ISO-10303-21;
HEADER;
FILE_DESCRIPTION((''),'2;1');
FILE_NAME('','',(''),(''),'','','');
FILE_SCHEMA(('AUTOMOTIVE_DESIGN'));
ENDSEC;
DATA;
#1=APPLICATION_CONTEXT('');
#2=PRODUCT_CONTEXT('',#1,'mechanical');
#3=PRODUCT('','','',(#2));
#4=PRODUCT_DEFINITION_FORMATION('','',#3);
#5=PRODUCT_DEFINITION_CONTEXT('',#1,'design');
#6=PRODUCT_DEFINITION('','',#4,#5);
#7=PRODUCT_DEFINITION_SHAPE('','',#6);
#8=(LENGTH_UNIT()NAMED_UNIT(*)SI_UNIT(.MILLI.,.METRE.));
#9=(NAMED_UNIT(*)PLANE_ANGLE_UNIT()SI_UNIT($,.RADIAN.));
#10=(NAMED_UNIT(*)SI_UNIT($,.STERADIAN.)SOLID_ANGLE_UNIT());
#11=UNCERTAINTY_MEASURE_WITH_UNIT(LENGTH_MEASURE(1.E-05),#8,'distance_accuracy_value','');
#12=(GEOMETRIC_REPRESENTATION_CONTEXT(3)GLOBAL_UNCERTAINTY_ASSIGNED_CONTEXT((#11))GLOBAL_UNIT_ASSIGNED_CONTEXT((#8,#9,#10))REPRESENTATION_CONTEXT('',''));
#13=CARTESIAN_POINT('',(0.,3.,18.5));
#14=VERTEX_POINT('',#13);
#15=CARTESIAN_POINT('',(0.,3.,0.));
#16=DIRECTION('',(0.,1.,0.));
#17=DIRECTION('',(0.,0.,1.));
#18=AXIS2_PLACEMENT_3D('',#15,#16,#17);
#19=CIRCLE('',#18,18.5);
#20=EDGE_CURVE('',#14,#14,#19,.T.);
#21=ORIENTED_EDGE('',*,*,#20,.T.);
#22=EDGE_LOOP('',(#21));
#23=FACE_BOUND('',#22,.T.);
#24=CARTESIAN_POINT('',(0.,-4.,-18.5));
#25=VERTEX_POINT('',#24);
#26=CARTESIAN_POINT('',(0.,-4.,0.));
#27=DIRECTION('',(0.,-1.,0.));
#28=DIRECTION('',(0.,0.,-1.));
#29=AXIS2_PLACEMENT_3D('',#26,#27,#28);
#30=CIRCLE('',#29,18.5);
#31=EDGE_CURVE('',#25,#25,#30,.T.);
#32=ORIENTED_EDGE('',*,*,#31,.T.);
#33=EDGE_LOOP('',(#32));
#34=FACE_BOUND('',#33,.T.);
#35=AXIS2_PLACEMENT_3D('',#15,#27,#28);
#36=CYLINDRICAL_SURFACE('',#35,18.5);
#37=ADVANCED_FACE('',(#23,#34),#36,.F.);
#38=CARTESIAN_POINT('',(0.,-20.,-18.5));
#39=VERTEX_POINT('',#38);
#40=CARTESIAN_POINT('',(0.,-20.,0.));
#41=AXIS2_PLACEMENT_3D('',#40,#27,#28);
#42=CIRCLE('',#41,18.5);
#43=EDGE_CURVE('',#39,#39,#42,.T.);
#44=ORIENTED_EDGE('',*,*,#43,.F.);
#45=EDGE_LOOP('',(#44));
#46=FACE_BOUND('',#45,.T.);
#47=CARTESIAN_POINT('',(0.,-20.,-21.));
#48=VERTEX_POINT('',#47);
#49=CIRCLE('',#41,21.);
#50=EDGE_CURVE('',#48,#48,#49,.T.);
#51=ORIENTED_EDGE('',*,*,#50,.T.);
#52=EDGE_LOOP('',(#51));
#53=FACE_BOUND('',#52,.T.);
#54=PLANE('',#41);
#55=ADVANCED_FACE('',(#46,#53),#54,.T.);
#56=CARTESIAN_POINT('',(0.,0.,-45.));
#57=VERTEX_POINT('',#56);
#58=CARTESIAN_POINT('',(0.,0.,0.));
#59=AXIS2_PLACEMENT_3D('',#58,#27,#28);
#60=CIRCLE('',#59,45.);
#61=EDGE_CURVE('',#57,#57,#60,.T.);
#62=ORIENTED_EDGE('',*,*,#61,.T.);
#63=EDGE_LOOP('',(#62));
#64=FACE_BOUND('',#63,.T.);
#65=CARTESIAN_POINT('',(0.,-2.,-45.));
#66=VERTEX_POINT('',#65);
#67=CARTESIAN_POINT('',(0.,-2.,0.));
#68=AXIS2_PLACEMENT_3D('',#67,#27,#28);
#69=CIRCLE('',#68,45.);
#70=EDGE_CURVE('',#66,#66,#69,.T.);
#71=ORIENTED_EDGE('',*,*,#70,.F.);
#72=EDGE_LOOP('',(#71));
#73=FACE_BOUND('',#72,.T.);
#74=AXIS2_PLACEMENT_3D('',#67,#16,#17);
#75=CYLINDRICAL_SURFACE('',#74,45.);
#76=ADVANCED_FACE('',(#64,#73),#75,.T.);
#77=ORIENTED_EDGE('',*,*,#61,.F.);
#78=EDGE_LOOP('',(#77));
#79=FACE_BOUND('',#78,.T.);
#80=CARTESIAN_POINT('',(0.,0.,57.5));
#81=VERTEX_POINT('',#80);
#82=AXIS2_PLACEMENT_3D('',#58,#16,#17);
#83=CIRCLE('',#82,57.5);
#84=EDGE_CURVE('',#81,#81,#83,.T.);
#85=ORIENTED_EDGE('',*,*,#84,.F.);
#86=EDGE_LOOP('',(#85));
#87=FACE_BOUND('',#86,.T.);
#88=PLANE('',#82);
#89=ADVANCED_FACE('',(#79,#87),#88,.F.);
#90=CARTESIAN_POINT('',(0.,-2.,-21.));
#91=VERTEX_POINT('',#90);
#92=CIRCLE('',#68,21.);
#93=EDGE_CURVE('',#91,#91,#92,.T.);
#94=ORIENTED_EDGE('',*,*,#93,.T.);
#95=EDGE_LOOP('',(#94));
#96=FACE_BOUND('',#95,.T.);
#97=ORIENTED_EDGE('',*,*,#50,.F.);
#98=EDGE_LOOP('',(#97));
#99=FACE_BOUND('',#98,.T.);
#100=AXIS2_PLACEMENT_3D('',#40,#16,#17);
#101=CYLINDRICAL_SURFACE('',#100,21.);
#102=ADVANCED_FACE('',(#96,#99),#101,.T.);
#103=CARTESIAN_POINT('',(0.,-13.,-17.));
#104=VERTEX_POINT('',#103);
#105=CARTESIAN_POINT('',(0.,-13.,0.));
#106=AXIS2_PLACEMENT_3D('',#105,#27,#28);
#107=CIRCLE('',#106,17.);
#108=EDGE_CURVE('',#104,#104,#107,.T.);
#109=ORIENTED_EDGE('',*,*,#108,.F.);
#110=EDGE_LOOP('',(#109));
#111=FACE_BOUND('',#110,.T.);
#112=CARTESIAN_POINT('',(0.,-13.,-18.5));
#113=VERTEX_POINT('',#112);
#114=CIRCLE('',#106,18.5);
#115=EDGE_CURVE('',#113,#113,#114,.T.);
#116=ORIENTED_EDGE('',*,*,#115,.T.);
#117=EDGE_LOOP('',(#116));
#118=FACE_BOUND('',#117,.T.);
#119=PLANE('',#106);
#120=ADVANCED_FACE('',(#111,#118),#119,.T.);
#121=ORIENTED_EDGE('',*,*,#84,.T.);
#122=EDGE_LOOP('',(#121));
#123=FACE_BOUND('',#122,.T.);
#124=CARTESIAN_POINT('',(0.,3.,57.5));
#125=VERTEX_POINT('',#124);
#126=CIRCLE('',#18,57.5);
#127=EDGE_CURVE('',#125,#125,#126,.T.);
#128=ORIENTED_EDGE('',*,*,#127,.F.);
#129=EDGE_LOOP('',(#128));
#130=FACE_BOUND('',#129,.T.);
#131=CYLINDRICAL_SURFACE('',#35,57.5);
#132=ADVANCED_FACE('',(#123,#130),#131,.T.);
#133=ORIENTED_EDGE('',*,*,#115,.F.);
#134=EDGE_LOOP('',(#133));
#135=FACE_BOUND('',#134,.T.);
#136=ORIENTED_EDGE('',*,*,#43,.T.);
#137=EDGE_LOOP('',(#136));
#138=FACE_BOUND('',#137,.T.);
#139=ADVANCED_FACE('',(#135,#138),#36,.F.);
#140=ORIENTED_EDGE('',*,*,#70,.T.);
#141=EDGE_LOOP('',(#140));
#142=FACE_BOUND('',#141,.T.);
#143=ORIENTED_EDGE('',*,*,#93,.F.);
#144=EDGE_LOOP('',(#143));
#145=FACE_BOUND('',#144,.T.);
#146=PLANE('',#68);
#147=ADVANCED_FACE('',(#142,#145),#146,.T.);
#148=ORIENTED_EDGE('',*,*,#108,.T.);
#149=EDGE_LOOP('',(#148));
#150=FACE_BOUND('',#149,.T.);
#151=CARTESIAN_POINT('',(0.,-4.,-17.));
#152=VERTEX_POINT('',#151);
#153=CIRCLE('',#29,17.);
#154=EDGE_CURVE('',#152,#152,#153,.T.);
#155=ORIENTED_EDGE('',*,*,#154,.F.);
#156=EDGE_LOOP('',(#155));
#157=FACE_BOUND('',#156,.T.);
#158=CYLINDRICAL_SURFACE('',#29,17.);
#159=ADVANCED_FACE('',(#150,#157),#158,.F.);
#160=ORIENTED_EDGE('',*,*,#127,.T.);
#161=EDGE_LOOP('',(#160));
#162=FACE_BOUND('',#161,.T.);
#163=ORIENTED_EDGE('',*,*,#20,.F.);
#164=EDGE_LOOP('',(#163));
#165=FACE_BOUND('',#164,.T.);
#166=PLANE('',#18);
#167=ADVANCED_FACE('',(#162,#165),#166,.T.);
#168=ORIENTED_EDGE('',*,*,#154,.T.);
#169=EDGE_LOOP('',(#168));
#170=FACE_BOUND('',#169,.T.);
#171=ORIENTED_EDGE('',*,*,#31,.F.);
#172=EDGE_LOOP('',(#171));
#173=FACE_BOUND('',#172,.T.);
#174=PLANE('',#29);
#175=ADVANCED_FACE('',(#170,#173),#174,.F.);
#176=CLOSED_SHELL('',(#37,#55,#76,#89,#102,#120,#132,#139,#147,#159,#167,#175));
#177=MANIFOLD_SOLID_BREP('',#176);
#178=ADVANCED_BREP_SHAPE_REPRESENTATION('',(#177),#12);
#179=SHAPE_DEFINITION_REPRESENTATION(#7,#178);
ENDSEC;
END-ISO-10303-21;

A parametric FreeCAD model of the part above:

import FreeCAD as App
import Part
import Sketcher
from FreeCAD import Vector
Q = App.Units.Quantity

doc = App.newDocument("Part")
params = doc.addObject("Spreadsheet::Sheet", "Params")
for row, (alias, value) in enumerate([
    ("sketch1_diameter", "115 mm"),
    ("sketch1_diameter2", "37 mm"),
    ("pad1_length", "3 mm"),
    ("sketch2_diameter", "90 mm"),
    ("sketch2_diameter2", "37 mm"),
    ("pad2_length", "2 mm"),
    ("sketch3_diameter", "42 mm"),
    ("sketch3_diameter2", "37 mm"),
    ("pad3_length", "18 mm"),
    ("sketch4_diameter", "37 mm"),
    ("sketch4_diameter2", "34 mm"),
    ("pad4_length", "9 mm"),
], start=1):
    params.set(f"A{row}", alias)
    params.set(f"B{row}", "=" + value)
    params.setAlias(f"B{row}", alias)

body = doc.addObject("PartDesign::Body", "Body")

sketch1 = body.newObject("Sketcher::SketchObject", "Sketch")
sketch1.AttachmentSupport = (doc.getObject("XZ_Plane"), [""])
sketch1.MapMode = "FlatFace"
sketch1.addGeometry([
    Part.Circle(Vector(0, 0, 0), Vector(0, 0, 1), 58),
    Part.Circle(Vector(0, 0, 0), Vector(0, 0, 1), 18),
], False)
sketch1.addConstraint([
    Sketcher.Constraint("Coincident", 0, 3, -1, 1),
    Sketcher.Constraint("Coincident", 1, 3, -1, 1),
    Sketcher.Constraint("Diameter", 0, Q("115 mm")),
    Sketcher.Constraint("Diameter", 1, Q("37 mm")),
])
sketch1.setExpression("Constraints[2]", "Params.sketch1_diameter")
sketch1.setExpression("Constraints[3]", "Params.sketch1_diameter2")
pad1 = body.newObject("PartDesign::Pad", "Pad")
pad1.Profile = sketch1
pad1.setExpression("Length", "Params.pad1_length")
pad1.Reversed = True

sketch2 = body.newObject("Sketcher::SketchObject", "Sketch001")
sketch2.AttachmentSupport = (doc.getObject("XZ_Plane"), [""])
sketch2.MapMode = "FlatFace"
sketch2.AttachmentOffset = App.Placement(Vector(0, 0, 2), App.Rotation())
sketch2.addGeometry([
    Part.Circle(Vector(0, 0, 0), Vector(0, 0, 1), 45),
    Part.Circle(Vector(0, 0, 0), Vector(0, 0, 1), 18),
], False)
sketch2.addConstraint([
    Sketcher.Constraint("Coincident", 0, 3, -1, 1),
    Sketcher.Constraint("Coincident", 1, 3, -1, 1),
    Sketcher.Constraint("Diameter", 0, Q("90 mm")),
    Sketcher.Constraint("Diameter", 1, Q("37 mm")),
])
sketch2.setExpression("Constraints[2]", "Params.sketch2_diameter")
sketch2.setExpression("Constraints[3]", "Params.sketch2_diameter2")
pad2 = body.newObject("PartDesign::Pad", "Pad001")
pad2.Profile = sketch2
pad2.setExpression("Length", "Params.pad2_length")
pad2.Reversed = True

sketch3 = body.newObject("Sketcher::SketchObject", "Sketch002")
sketch3.AttachmentSupport = (doc.getObject("XZ_Plane"), [""])
sketch3.MapMode = "FlatFace"
sketch3.AttachmentOffset = App.Placement(Vector(0, 0, 20), App.Rotation())
sketch3.addGeometry([
    Part.Circle(Vector(0, 0, 0), Vector(0, 0, 1), 21),
    Part.Circle(Vector(0, 0, 0), Vector(0, 0, 1), 18),
], False)
sketch3.addConstraint([
    Sketcher.Constraint("Coincident", 0, 3, -1, 1),
    Sketcher.Constraint("Coincident", 1, 3, -1, 1),
    Sketcher.Constraint("Diameter", 0, Q("42 mm")),
    Sketcher.Constraint("Diameter", 1, Q("37 mm")),
])
sketch3.setExpression("Constraints[2]", "Params.sketch3_diameter")
sketch3.setExpression("Constraints[3]", "Params.sketch3_diameter2")
pad3 = body.newObject("PartDesign::Pad", "Pad002")
pad3.Profile = sketch3
pad3.setExpression("Length", "Params.pad3_length")
pad3.Reversed = True

sketch4 = body.newObject("Sketcher::SketchObject", "Sketch003")
sketch4.AttachmentSupport = (doc.getObject("XZ_Plane"), [""])
sketch4.MapMode = "FlatFace"
sketch4.AttachmentOffset = App.Placement(Vector(0, 0, 13), App.Rotation())
sketch4.addGeometry([
    Part.Circle(Vector(0, 0, 0), Vector(0, 0, 1), 18),
    Part.Circle(Vector(0, 0, 0), Vector(0, 0, 1), 17),
], False)
sketch4.addConstraint([
    Sketcher.Constraint("Coincident", 0, 3, -1, 1),
    Sketcher.Constraint("Coincident", 1, 3, -1, 1),
    Sketcher.Constraint("Diameter", 0, Q("37 mm")),
    Sketcher.Constraint("Diameter", 1, Q("34 mm")),
])
sketch4.setExpression("Constraints[2]", "Params.sketch4_diameter")
sketch4.setExpression("Constraints[3]", "Params.sketch4_diameter2")
pad4 = body.newObject("PartDesign::Pad", "Pad003")
pad4.Profile = sketch4
pad4.setExpression("Length", "Params.pad4_length")
pad4.Reversed = True

doc.recompute()
